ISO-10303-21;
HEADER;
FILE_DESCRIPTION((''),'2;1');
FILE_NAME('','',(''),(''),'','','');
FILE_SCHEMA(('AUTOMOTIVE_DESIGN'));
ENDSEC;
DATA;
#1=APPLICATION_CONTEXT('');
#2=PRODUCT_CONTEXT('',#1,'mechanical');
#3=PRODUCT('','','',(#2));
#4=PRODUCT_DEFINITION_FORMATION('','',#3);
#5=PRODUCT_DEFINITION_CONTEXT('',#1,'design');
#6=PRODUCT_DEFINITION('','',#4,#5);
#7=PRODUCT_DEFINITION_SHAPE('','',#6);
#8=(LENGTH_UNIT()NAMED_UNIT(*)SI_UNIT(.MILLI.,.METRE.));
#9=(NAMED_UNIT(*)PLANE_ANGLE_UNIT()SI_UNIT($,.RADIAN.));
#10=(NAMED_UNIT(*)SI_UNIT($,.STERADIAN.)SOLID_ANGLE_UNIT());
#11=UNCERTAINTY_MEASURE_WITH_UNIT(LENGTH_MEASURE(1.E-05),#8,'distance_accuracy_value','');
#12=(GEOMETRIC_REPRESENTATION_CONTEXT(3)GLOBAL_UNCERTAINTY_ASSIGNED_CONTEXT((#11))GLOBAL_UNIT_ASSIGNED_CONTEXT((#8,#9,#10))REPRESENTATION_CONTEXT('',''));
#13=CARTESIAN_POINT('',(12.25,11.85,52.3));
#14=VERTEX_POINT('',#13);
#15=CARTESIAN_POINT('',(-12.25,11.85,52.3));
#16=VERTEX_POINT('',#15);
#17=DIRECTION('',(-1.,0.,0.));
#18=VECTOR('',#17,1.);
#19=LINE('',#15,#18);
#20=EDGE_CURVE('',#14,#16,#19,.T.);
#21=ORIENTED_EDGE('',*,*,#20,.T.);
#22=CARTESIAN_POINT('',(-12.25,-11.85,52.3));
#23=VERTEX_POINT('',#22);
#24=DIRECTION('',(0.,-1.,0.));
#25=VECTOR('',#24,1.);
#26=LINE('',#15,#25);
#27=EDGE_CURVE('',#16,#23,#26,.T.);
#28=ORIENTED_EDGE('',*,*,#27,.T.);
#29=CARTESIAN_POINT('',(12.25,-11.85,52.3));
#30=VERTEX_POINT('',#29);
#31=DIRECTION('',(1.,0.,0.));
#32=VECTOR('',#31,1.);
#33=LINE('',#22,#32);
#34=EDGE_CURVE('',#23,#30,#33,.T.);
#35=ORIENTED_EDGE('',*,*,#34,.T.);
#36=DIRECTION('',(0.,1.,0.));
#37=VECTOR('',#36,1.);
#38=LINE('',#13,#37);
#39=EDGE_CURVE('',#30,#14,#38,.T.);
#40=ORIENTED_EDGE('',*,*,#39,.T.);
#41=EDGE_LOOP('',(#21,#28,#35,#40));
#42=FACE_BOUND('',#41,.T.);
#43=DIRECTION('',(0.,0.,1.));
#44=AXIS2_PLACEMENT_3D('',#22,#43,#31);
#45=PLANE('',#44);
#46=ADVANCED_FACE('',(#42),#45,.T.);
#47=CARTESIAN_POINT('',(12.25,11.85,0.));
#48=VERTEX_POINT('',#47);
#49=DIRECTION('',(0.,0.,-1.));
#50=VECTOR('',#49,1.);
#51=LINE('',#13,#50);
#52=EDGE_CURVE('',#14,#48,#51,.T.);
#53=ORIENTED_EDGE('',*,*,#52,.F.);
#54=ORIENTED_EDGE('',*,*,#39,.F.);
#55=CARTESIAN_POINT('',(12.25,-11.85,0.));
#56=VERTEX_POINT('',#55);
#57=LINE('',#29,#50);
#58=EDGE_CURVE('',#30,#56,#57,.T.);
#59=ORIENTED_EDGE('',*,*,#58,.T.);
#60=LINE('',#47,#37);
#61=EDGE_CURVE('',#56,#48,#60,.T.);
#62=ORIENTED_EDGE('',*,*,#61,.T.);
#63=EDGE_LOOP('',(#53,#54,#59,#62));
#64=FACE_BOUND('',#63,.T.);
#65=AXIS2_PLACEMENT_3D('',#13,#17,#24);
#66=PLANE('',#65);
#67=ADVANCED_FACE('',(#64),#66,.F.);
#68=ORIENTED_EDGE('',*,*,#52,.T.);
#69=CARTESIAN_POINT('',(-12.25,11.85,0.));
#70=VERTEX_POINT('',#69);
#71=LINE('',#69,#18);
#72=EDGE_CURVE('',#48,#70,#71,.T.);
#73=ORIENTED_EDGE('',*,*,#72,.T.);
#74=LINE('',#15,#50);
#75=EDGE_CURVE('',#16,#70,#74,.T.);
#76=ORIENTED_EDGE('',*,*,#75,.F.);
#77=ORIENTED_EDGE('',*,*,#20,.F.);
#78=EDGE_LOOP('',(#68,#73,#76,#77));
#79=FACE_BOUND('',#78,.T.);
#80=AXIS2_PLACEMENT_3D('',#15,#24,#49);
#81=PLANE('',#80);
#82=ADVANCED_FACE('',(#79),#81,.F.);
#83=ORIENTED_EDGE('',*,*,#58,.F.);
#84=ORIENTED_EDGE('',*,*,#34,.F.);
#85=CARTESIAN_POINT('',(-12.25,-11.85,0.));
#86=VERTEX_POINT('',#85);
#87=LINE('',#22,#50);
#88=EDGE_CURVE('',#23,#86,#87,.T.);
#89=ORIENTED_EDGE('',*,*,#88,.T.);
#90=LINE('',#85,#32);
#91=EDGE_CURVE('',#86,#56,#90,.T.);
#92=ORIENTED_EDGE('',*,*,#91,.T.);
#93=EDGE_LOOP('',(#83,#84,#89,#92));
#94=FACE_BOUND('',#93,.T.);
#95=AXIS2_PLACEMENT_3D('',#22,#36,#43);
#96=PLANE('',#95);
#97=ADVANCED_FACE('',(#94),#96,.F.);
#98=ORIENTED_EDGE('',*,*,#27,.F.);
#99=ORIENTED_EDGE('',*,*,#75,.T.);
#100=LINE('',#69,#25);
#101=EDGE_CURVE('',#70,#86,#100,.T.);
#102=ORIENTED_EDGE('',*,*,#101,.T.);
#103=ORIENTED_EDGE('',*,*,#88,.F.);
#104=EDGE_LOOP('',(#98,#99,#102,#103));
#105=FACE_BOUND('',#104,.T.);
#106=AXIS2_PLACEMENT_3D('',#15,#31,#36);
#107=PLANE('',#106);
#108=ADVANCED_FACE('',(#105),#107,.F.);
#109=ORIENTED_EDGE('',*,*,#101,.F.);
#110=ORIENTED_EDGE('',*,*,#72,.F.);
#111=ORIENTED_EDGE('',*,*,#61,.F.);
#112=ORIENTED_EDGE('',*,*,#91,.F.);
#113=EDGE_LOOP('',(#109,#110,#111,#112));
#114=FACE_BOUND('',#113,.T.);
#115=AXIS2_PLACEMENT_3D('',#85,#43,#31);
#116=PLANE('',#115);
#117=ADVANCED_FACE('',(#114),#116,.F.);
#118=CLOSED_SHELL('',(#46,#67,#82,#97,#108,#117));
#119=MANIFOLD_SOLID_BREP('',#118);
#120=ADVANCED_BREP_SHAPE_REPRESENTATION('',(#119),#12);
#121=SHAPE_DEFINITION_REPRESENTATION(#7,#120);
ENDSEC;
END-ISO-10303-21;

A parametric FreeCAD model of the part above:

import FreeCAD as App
import Part
import Sketcher
from FreeCAD import Vector

doc = App.newDocument("Part")
params = doc.addObject("Spreadsheet::Sheet", "Params")
for row, (alias, value) in enumerate([
    ("sketch1_width", "24.5 mm"),
    ("sketch1_height", "23.7 mm"),
    ("pad1_length", "52.3 mm"),
], start=1):
    params.set(f"A{row}", alias)
    params.set(f"B{row}", "=" + value)
    params.setAlias(f"B{row}", alias)

body = doc.addObject("PartDesign::Body", "Body")

# Sketch on XY plane
sketch1 = doc.addObject("Sketcher::SketchObject", "Sketch")
body.addObject(sketch1)
sketch1.AttachmentSupport = (doc.XY_Plane, [""])
sketch1.MapMode = "FlatFace"
sketch1.addGeometry(Part.LineSegment(Vector(-12, 12, 0), Vector(-12, -12, 0)), False)
sketch1.addGeometry(Part.LineSegment(Vector(-12, -12, 0), Vector(12, -12, 0)), False)
sketch1.addGeometry(Part.LineSegment(Vector(12, -12, 0), Vector(12, 12, 0)), False)
sketch1.addGeometry(Part.LineSegment(Vector(12, 12, 0), Vector(-12, 12, 0)), False)
sketch1.addConstraint(Sketcher.Constraint("Coincident", 0, 2, 1, 1))
sketch1.addConstraint(Sketcher.Constraint("Coincident", 1, 2, 2, 1))
sketch1.addConstraint(Sketcher.Constraint("Coincident", 2, 2, 3, 1))
sketch1.addConstraint(Sketcher.Constraint("Coincident", 3, 2, 0, 1))
sketch1.addConstraint(Sketcher.Constraint("Vertical", 0))
sketch1.addConstraint(Sketcher.Constraint("Horizontal", 1))
sketch1.addConstraint(Sketcher.Constraint("Vertical", 2))
sketch1.addConstraint(Sketcher.Constraint("Horizontal", 3))
sketch1.addConstraint(Sketcher.Constraint("Symmetric", 0, 2, 2, 2, -1, 1))
sketch1.addConstraint(Sketcher.Constraint("DistanceX", 1, 1, 1, 2, 24.5))
sketch1.addConstraint(Sketcher.Constraint("DistanceY", 0, 2, 0, 1, 23.7))
sketch1.setExpression("Constraints[9]", "Params.sketch1_width")
sketch1.setExpression("Constraints[10]", "Params.sketch1_height")
pad1 = doc.addObject("PartDesign::Pad", "Pad")
body.addObject(pad1)
pad1.Profile = sketch1
pad1.setExpression("Length", "Params.pad1_length")

doc.recompute()
